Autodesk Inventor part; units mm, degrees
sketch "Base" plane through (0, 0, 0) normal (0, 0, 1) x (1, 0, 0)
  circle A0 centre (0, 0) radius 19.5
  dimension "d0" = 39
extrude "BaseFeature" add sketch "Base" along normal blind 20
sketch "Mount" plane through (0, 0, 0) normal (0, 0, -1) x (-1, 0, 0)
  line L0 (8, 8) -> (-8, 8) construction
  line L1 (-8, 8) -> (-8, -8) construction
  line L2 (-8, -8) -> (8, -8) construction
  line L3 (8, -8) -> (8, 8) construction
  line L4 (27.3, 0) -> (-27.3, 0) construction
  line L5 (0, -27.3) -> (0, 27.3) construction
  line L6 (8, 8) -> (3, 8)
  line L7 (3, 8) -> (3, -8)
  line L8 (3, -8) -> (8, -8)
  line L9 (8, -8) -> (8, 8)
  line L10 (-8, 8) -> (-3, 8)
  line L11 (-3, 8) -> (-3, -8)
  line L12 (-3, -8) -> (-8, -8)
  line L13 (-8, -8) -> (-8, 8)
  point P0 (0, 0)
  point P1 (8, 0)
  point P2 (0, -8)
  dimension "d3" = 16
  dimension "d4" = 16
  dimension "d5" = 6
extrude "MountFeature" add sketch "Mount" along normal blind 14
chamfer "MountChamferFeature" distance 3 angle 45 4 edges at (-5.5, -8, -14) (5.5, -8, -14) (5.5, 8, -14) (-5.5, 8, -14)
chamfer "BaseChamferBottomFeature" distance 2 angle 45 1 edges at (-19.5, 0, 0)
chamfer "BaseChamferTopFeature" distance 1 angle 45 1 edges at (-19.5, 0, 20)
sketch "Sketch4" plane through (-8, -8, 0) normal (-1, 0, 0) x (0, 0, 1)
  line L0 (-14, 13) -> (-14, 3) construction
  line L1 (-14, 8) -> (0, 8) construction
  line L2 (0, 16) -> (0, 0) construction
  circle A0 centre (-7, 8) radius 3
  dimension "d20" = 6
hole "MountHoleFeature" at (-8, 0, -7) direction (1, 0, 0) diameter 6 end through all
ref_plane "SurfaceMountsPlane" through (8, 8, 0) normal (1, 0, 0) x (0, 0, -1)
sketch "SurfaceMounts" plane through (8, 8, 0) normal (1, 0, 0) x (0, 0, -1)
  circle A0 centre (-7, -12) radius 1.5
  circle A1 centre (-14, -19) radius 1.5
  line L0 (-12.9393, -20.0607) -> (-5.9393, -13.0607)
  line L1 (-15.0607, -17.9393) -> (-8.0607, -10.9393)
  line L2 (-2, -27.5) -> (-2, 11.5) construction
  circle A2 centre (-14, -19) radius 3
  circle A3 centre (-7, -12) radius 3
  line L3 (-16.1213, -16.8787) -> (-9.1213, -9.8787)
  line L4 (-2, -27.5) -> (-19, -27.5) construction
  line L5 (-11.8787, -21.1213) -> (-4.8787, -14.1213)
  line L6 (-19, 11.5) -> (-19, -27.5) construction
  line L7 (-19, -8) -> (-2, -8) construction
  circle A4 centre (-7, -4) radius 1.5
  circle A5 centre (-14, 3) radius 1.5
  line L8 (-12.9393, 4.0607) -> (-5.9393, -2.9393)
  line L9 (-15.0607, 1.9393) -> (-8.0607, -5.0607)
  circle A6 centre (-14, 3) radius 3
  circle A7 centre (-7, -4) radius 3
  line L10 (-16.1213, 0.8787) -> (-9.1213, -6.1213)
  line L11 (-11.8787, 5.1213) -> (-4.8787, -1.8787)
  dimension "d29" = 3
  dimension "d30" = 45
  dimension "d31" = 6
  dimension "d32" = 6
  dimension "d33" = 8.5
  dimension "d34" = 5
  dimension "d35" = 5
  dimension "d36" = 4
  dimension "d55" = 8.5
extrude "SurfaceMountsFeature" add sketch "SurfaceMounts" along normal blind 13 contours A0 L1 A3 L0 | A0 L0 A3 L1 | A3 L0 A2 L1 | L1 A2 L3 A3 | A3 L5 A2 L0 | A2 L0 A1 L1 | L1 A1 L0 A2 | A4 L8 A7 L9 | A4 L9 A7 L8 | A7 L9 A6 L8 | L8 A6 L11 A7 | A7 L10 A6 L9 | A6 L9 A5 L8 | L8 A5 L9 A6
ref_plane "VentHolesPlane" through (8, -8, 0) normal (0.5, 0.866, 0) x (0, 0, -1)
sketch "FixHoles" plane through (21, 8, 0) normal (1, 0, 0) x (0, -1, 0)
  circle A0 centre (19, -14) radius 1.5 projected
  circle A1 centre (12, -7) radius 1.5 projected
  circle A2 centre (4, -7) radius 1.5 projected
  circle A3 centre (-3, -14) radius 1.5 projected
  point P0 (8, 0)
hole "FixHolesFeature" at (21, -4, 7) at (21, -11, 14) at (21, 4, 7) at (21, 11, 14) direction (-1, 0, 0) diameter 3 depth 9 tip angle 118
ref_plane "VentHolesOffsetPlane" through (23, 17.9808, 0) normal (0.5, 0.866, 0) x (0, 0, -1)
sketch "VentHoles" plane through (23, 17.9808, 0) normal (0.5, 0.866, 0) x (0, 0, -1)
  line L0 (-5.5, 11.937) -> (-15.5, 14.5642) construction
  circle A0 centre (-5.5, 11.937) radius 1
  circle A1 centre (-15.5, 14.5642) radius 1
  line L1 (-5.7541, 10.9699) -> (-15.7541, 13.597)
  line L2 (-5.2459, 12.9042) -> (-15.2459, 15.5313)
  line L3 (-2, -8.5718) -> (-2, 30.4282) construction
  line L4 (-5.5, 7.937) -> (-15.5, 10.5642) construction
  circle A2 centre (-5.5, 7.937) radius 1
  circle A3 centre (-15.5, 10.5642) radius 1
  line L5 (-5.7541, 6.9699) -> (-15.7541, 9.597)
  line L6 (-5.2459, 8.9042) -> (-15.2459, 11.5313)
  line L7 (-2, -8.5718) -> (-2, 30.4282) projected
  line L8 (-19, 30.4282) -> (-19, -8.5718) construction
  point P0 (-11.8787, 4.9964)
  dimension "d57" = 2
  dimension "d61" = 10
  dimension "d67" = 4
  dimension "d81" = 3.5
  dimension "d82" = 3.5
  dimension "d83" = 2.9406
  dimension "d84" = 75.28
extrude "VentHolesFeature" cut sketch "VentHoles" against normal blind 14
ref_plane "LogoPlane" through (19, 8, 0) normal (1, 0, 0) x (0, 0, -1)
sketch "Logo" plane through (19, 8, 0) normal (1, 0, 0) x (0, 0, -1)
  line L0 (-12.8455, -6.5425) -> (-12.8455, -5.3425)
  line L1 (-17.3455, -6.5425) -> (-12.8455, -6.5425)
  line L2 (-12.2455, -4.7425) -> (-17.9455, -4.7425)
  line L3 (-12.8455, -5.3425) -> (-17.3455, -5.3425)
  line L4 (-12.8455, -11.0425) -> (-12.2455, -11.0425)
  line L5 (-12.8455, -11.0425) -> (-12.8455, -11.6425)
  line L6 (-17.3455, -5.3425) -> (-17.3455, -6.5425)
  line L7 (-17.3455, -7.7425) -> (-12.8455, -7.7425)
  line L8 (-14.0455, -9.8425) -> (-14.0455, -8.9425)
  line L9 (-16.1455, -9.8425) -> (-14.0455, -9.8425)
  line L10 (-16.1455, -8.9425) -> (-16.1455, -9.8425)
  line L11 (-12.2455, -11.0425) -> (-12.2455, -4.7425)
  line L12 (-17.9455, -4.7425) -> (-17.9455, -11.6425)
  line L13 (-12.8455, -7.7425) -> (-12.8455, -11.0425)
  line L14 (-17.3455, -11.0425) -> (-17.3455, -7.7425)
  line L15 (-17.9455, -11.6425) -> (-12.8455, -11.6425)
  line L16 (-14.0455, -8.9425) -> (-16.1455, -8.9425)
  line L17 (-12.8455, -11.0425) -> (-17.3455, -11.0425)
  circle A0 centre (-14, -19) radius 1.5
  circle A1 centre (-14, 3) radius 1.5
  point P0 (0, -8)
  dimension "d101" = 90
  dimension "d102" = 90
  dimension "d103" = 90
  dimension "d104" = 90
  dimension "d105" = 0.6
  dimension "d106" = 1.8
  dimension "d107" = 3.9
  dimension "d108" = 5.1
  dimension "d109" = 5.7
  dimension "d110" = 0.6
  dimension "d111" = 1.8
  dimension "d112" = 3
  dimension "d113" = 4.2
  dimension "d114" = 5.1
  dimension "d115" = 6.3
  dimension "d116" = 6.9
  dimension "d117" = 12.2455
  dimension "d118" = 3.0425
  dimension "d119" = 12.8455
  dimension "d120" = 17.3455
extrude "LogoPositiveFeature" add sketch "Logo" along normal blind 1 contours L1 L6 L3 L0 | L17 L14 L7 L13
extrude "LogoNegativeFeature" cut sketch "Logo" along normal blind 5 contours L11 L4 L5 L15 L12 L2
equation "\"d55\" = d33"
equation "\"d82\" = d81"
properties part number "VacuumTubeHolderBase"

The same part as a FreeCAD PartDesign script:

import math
import FreeCAD as App
import Part
import Sketcher
Q = App.Units.Quantity


def edges_at(feature, points):
    """Names of the edges that pass closest to the given points."""
    edges = feature.Shape.Edges
    near = lambda p: min(range(len(edges)), key=lambda i: edges[i].distToShape(Part.Vertex(*p))[0])
    return sorted({f"Edge{near(p) + 1}" for p in points})


def add_polygon(sketch, points):
    """Adds a closed chain of lines whose ends are joined by coincident constraints."""
    first, n = sketch.GeometryCount, len(points)
    for a, b in zip(points, points[1:] + points[:1]):
        sketch.addGeometry(Part.LineSegment(App.Vector(*a, 0), App.Vector(*b, 0)), False)
    for i in range(n):
        sketch.addConstraint(Sketcher.Constraint("Coincident", first + i, 2, first + (i + 1) % n, 1))

doc = App.newDocument("Part")
params = doc.addObject("Spreadsheet::Sheet", "Params")
for row, (alias, value) in enumerate([
    ("sketch1_diameter", "39 mm"),
    ("pad1_length", "20 mm"),
    ("sketch2_height", "16 mm"),
    ("pad2_length", "14 mm"),
    ("chamfer_size", "3 mm"),
    ("chamfer2_size", "2 mm"),
    ("chamfer3_size", "1 mm"),
    ("sketch3_diameter", "6 mm"),
    ("hole_diameter", "6 mm"),
    ("sketch4_diameter", "3 mm"),
    ("sketch4_radius", "3 mm"),
    ("pad3_length", "13 mm"),
    ("sketch5_diameter", "3 mm"),
    ("hole2_diameter", "3 mm"),
    ("hole2_depth", "9 mm"),
    ("sketch6_radius", "1 mm"),
    ("pocket1_length", "14 mm"),
    ("sketch7_width", "1.2 mm"),
    ("sketch7_width2", "3.3 mm"),
    ("sketch7_width3", "0.9 mm"),
    ("sketch7_height", "4.5 mm"),
    ("sketch7_height2", "2.1 mm"),
    ("pad4_length", "1 mm"),
    ("sketch8_width", "6.3 mm"),
    ("sketch8_width2", "6.9 mm"),
    ("sketch8_height", "5.7 mm"),
    ("pocket2_length", "5 mm"),
], start=1):
    params.set(f"A{row}", alias)
    params.set(f"B{row}", "=" + value)
    params.setAlias(f"B{row}", alias)

body = doc.addObject("PartDesign::Body", "Body")

# Sketch on XY plane
sketch1 = body.newObject("Sketcher::SketchObject", "Sketch")
sketch1.AttachmentSupport = (doc.getObject("XY_Plane"), [""])
sketch1.MapMode = "FlatFace"
sketch1.addGeometry(Part.Circle(App.Vector(0, 0, 0), App.Vector(0, 0, 1), 20), False)
sketch1.addConstraint([
    Sketcher.Constraint("Coincident", 0, 3, -1, 1),
    Sketcher.Constraint("Diameter", 0, 39.0),
])
sketch1.setExpression("Constraints[1]", "Params.sketch1_diameter")
pad1 = body.newObject("PartDesign::Pad", "Pad")
pad1.Profile = sketch1
pad1.setExpression("Length", "Params.pad1_length")

# Sketch on XY plane
sketch2 = body.newObject("Sketcher::SketchObject", "Sketch001")
sketch2.AttachmentSupport = (doc.getObject("XY_Plane"), [""])
sketch2.MapMode = "FlatFace"
add_polygon(sketch2, [(-8, -8), (-8, 8), (-3, 8), (-3, -8)])  # lines 0-3
add_polygon(sketch2, [(3, 8), (8, 8), (8, -8), (3, -8)])  # lines 4-7
sketch2.addConstraint([
    Sketcher.Constraint("Vertical", 0),
    Sketcher.Constraint("Horizontal", 1),
    Sketcher.Constraint("Vertical", 2),
    Sketcher.Constraint("Horizontal", 3),
    Sketcher.Constraint("Horizontal", 4),
    Sketcher.Constraint("Vertical", 5),
    Sketcher.Constraint("Horizontal", 6),
    Sketcher.Constraint("Vertical", 7),
    Sketcher.Constraint("Symmetric", 3, 2, 4, 2, -1, 1),
    Sketcher.Constraint("Symmetric", 1, 2, 6, 2, -1, 1),
    Sketcher.Constraint("Horizontal", 1, 2, 4, 2),
    Sketcher.Constraint("DistanceY", 0, 1, 0, 2, 16.0),
    Sketcher.Constraint("DistanceX", 0, 2, 4, 2, 16.0),
    Sketcher.Constraint("DistanceX", 2, 2, 6, 2, 6.0),
])
sketch2.setExpression("Constraints[19]", "Params.sketch2_height")
pad2 = body.newObject("PartDesign::Pad", "Pad001")
pad2.Profile = sketch2
pad2.setExpression("Length", "Params.pad2_length")
pad2.Reversed = True
doc.recompute()

chamfer = body.newObject("PartDesign::Chamfer", "Chamfer")
chamfer.Base = (pad2, edges_at(pad2, [
    (-5.5, -8, -14),
    (5.5, -8, -14),
    (5.5, 8, -14),
    (-5.5, 8, -14),
]))
chamfer.setExpression("Size", "Params.chamfer_size")
doc.recompute()

chamfer2 = body.newObject("PartDesign::Chamfer", "Chamfer001")
chamfer2.Base = (chamfer, edges_at(chamfer, [(-19.5, 0, 0)]))
chamfer2.setExpression("Size", "Params.chamfer2_size")
doc.recompute()

chamfer3 = body.newObject("PartDesign::Chamfer", "Chamfer002")
chamfer3.Base = (chamfer2, edges_at(chamfer2, [(-19.5, 0, 20)]))
chamfer3.setExpression("Size", "Params.chamfer3_size")

# Sketch on YZ plane
sketch3 = body.newObject("Sketcher::SketchObject", "Sketch002")
sketch3.AttachmentSupport = (doc.getObject("YZ_Plane"), [""])
sketch3.MapMode = "FlatFace"
sketch3.AttachmentOffset = App.Placement(App.Vector(0, 0, -8), App.Rotation())
sketch3.addGeometry(Part.Circle(App.Vector(0, -7, 0), App.Vector(0, 0, 1), 3), False)
sketch3.addConstraint([
    Sketcher.Constraint("PointOnObject", 0, 3, -2),
    Sketcher.Constraint("Diameter", 0, 6.0),
    Sketcher.Constraint("DistanceY", 0, 3, -1, 1, 7.0),
])
sketch3.setExpression("Constraints[1]", "Params.sketch3_diameter")
doc.recompute()
hole = body.newObject("PartDesign::Hole", "Hole")
hole.Profile = sketch3
hole.ThreadType = "None"
hole.setExpression("Diameter", "Params.hole_diameter")
hole.DepthType = "ThroughAll"
hole.Reversed = True

# Sketch on YZ plane
sketch4 = body.newObject("Sketcher::SketchObject", "Sketch003")
sketch4.AttachmentSupport = (doc.getObject("YZ_Plane"), [""])
sketch4.MapMode = "FlatFace"
sketch4.AttachmentOffset = App.Placement(App.Vector(0, 0, 8), App.Rotation())
sketch4.addGeometry([
    Part.LineSegment(App.Vector(-1.9, 9.1, 0), App.Vector(-8.9, 16.1, 0)),  # 0
    Part.ArcOfCircle(Part.Circle(App.Vector(-11, 14, 0), App.Vector(0, 0, 1), 3), math.radians(45), math.radians(225)),  # 1
    Part.LineSegment(App.Vector(-13.1, 11.9, 0), App.Vector(-6.1, 4.9, 0)),  # 2
    Part.ArcOfCircle(Part.Circle(App.Vector(-4, 7, 0), App.Vector(0, 0, 1), 3), math.radians(-135), math.radians(45)),  # 3
    Part.Circle(App.Vector(-4, 7, 0), App.Vector(0, 0, 1), 1.5),  # 4
    Part.Circle(App.Vector(-11, 14, 0), App.Vector(0, 0, 1), 1.5),  # 5
    Part.LineSegment(App.Vector(6.1, 4.9, 0), App.Vector(13.1, 11.9, 0)),  # 6
    Part.ArcOfCircle(Part.Circle(App.Vector(11, 14, 0), App.Vector(0, 0, 1), 3), math.radians(-45), math.radians(135)),  # 7
    Part.LineSegment(App.Vector(8.9, 16.1, 0), App.Vector(1.9, 9.1, 0)),  # 8
    Part.ArcOfCircle(Part.Circle(App.Vector(4, 7, 0), App.Vector(0, 0, 1), 3), math.radians(135), math.radians(315)),  # 9
    Part.Circle(App.Vector(4, 7, 0), App.Vector(0, 0, 1), 1.5),  # 10
    Part.Circle(App.Vector(11, 14, 0), App.Vector(0, 0, 1), 1.5),  # 11
], False)
sketch4.addConstraint([
    Sketcher.Constraint("Tangent", 0, 2, 1, 1),
    Sketcher.Constraint("Tangent", 1, 2, 2, 1),
    Sketcher.Constraint("Tangent", 2, 2, 3, 1),
    Sketcher.Constraint("Tangent", 3, 2, 0, 1),
    Sketcher.Constraint("Tangent", 6, 2, 7, 1),
    Sketcher.Constraint("Tangent", 7, 2, 8, 1),
    Sketcher.Constraint("Tangent", 8, 2, 9, 1),
    Sketcher.Constraint("Tangent", 9, 2, 6, 1),
    Sketcher.Constraint("Coincident", 4, 3, 3, 3),
    Sketcher.Constraint("Coincident", 5, 3, 1, 3),
    Sketcher.Constraint("Coincident", 10, 3, 9, 3),
    Sketcher.Constraint("Coincident", 11, 3, 7, 3),
    Sketcher.Constraint("Equal", 1, 3),
    Sketcher.Constraint("Equal", 4, 5),
    Sketcher.Constraint("Equal", 3, 7),
    Sketcher.Constraint("Equal", 7, 9),
    Sketcher.Constraint("Equal", 5, 10),
    Sketcher.Constraint("Equal", 10, 11),
    Sketcher.Constraint("Symmetric", 1, 3, 7, 3, -2),
    Sketcher.Constraint("Symmetric", 3, 3, 9, 3, -2),
    Sketcher.Constraint("Perpendicular", 2, 6),
    Sketcher.Constraint("Diameter", 4, 3.0),
    Sketcher.Constraint("Radius", 1, 3.0),
    Sketcher.Constraint("DistanceX", 3, 3, -1, 1, 4.0),
    Sketcher.Constraint("DistanceX", 1, 3, -1, 1, 11.0),
    Sketcher.Constraint("DistanceY", -1, 1, 1, 3, 14.0),
])
sketch4.setExpression("Constraints[21]", "Params.sketch4_diameter")
sketch4.setExpression("Constraints[22]", "Params.sketch4_radius")
pad3 = body.newObject("PartDesign::Pad", "Pad002")
pad3.Profile = sketch4
pad3.setExpression("Length", "Params.pad3_length")

# Sketch on YZ plane
sketch5 = body.newObject("Sketcher::SketchObject", "Sketch004")
sketch5.AttachmentSupport = (doc.getObject("YZ_Plane"), [""])
sketch5.MapMode = "FlatFace"
sketch5.AttachmentOffset = App.Placement(App.Vector(0, 0, 21), App.Rotation())
sketch5.addGeometry([
    Part.Circle(App.Vector(-4, 7, 0), App.Vector(0, 0, 1), 1.5),
    Part.Circle(App.Vector(-11, 14, 0), App.Vector(0, 0, 1), 1.5),
    Part.Circle(App.Vector(4, 7, 0), App.Vector(0, 0, 1), 1.5),
    Part.Circle(App.Vector(11, 14, 0), App.Vector(0, 0, 1), 1.5),
], False)
sketch5.addConstraint([
    Sketcher.Constraint("Equal", 0, 1),
    Sketcher.Constraint("Equal", 1, 2),
    Sketcher.Constraint("Equal", 2, 3),
    Sketcher.Constraint("Symmetric", 0, 3, 2, 3, -2),
    Sketcher.Constraint("Symmetric", 1, 3, 3, 3, -2),
    Sketcher.Constraint("Diameter", 0, 3.0),
    Sketcher.Constraint("DistanceX", 0, 3, -1, 1, 4.0),
    Sketcher.Constraint("DistanceY", -1, 1, 0, 3, 7.0),
    Sketcher.Constraint("DistanceX", 1, 3, -1, 1, 11.0),
    Sketcher.Constraint("DistanceY", -1, 1, 1, 3, 14.0),
])
sketch5.setExpression("Constraints[5]", "Params.sketch5_diameter")
doc.recompute()
hole2 = body.newObject("PartDesign::Hole", "Hole001")
hole2.Profile = sketch5
hole2.ThreadType = "None"
hole2.setExpression("Diameter", "Params.hole2_diameter")
hole2.DepthType = "Dimension"
hole2.setExpression("Depth", "Params.hole2_depth")
hole2.DrillPoint = "Angled"
hole2.DrillPointAngle = 118

# Sketch on an angled plane
sketch6 = body.newObject("Sketcher::SketchObject", "Sketch005")
sketch6.Placement = App.Placement(App.Vector(23, 17.9808, 0), App.Rotation(App.Vector(0, 0, -1), App.Vector(-0.866025404, 0.5, 0), App.Vector(0.5, 0.866025404, 0), "ZXY"))
sketch6.addGeometry([
    Part.ArcOfCircle(Part.Circle(App.Vector(-5.5, 11.9, 0), App.Vector(0, 0, 1), 1), math.radians(-105), math.radians(75)),  # 0
    Part.LineSegment(App.Vector(-5.2, 12.9, 0), App.Vector(-15.2, 15.5, 0)),  # 1
    Part.ArcOfCircle(Part.Circle(App.Vector(-15.5, 14.6, 0), App.Vector(0, 0, 1), 1), math.radians(75), math.radians(255)),  # 2
    Part.LineSegment(App.Vector(-15.8, 13.6, 0), App.Vector(-5.8, 11, 0)),  # 3
    Part.ArcOfCircle(Part.Circle(App.Vector(-5.5, 7.9, 0), App.Vector(0, 0, 1), 1), math.radians(-105), math.radians(75)),  # 4
    Part.LineSegment(App.Vector(-5.2, 8.9, 0), App.Vector(-15.2, 11.5, 0)),  # 5
    Part.ArcOfCircle(Part.Circle(App.Vector(-15.5, 10.6, 0), App.Vector(0, 0, 1), 1), math.radians(75), math.radians(255)),  # 6
    Part.LineSegment(App.Vector(-15.8, 9.6, 0), App.Vector(-5.8, 7, 0)),  # 7
], False)
sketch6.addConstraint([
    Sketcher.Constraint("Tangent", 0, 2, 1, 1),
    Sketcher.Constraint("Tangent", 1, 2, 2, 1),
    Sketcher.Constraint("Tangent", 2, 2, 3, 1),
    Sketcher.Constraint("Tangent", 3, 2, 0, 1),
    Sketcher.Constraint("Tangent", 4, 2, 5, 1),
    Sketcher.Constraint("Tangent", 5, 2, 6, 1),
    Sketcher.Constraint("Tangent", 6, 2, 7, 1),
    Sketcher.Constraint("Tangent", 7, 2, 4, 1),
    Sketcher.Constraint("Equal", 0, 2),
    Sketcher.Constraint("Equal", 2, 4),
    Sketcher.Constraint("Equal", 4, 6),
    Sketcher.Constraint("Parallel", 3, 5),
    Sketcher.Constraint("Vertical", 0, 3, 4, 3),
    Sketcher.Constraint("Vertical", 2, 3, 6, 3),
    Sketcher.Constraint("Radius", 0, 1.0),
    Sketcher.Constraint("DistanceX", 2, 3, 0, 3, 10.0),
    Sketcher.Constraint("DistanceY", 4, 3, 0, 3, 4.0),
    Sketcher.Constraint("DistanceX", 0, 3, -1, 1, 5.5),
    Sketcher.Constraint("Angle", 1, Q("165.2804 deg")),
    Sketcher.Constraint("DistanceY", -1, 1, 3, 2, 10.97),
])
sketch6.setExpression("Constraints[14]", "Params.sketch6_radius")
pocket1 = body.newObject("PartDesign::Pocket", "Pocket")
pocket1.Profile = sketch6
pocket1.setExpression("Length", "Params.pocket1_length")

# Sketch on YZ plane
sketch7 = body.newObject("Sketcher::SketchObject", "Sketch006")
sketch7.AttachmentSupport = (doc.getObject("YZ_Plane"), [""])
sketch7.MapMode = "FlatFace"
sketch7.AttachmentOffset = App.Placement(App.Vector(0, 0, 19), App.Rotation())
add_polygon(sketch7, [(1.5, 17.3), (1.5, 12.8), (2.7, 12.8), (2.7, 17.3)])  # lines 0-3
add_polygon(sketch7, [(-3, 17.3), (-3, 12.8), (0.3, 12.8), (0.3, 17.3)])  # lines 4-7
add_polygon(sketch7, [(-0.9, 14), (-1.8, 14), (-1.8, 16.1), (-0.9, 16.1)])  # lines 8-11
sketch7.addConstraint([
    Sketcher.Constraint("Vertical", 0),
    Sketcher.Constraint("Horizontal", 1),
    Sketcher.Constraint("Vertical", 2),
    Sketcher.Constraint("Horizontal", 3),
    Sketcher.Constraint("Vertical", 4),
    Sketcher.Constraint("Horizontal", 5),
    Sketcher.Constraint("Vertical", 6),
    Sketcher.Constraint("Horizontal", 7),
    Sketcher.Constraint("Horizontal", 8),
    Sketcher.Constraint("Vertical", 9),
    Sketcher.Constraint("Horizontal", 10),
    Sketcher.Constraint("Vertical", 11),
    Sketcher.Constraint("Horizontal", 1, 2, 4, 2),
    Sketcher.Constraint("Horizontal", 3, 2, 6, 2),
    Sketcher.Constraint("DistanceX", 4, 2, 1, 2, 5.7),
    Sketcher.Constraint("DistanceX", 1, 1, 1, 2, 1.2),
    Sketcher.Constraint("DistanceX", 5, 1, 5, 2, 3.3),
    Sketcher.Constraint("DistanceX", 8, 2, 8, 1, 0.9),
    Sketcher.Constraint("DistanceY", 0, 2, 0, 1, 4.5),
    Sketcher.Constraint("DistanceY", 9, 1, 9, 2, 2.1),
    Sketcher.Constraint("DistanceY", -1, 1, 0, 2, 12.8455),
    Sketcher.Constraint("DistanceX", 4, 2, -1, 1, 3.0425),
    Sketcher.Constraint("DistanceX", 4, 2, 8, 2, 1.2),
    Sketcher.Constraint("DistanceY", 4, 2, 8, 2, 1.2),
])
sketch7.setExpression("Constraints[27]", "Params.sketch7_width")
sketch7.setExpression("Constraints[28]", "Params.sketch7_width2")
sketch7.setExpression("Constraints[29]", "Params.sketch7_width3")
sketch7.setExpression("Constraints[30]", "Params.sketch7_height")
sketch7.setExpression("Constraints[31]", "Params.sketch7_height2")
pad4 = body.newObject("PartDesign::Pad", "Pad003")
pad4.Profile = sketch7
pad4.setExpression("Length", "Params.pad4_length")

# Sketch on YZ plane
sketch8 = body.newObject("Sketcher::SketchObject", "Sketch007")
sketch8.AttachmentSupport = (doc.getObject("YZ_Plane"), [""])
sketch8.MapMode = "FlatFace"
sketch8.AttachmentOffset = App.Placement(App.Vector(0, 0, 19), App.Rotation())
add_polygon(sketch8, [(-3, 12.2), (3.3, 12.2), (3.3, 17.9), (-3.6, 17.9), (-3.6, 12.8), (-3, 12.8)])  # lines 0-5
add_polygon(sketch8, [(0.3, 12.8), (-3, 12.8), (-3, 17.3), (0.3, 17.3)])  # lines 6-9
add_polygon(sketch8, [(2.7, 12.8), (1.5, 12.8), (1.5, 17.3), (2.7, 17.3)])  # lines 10-13
sketch8.addConstraint([
    Sketcher.Constraint("Horizontal", 0),
    Sketcher.Constraint("Vertical", 1),
    Sketcher.Constraint("Horizontal", 2),
    Sketcher.Constraint("Vertical", 3),
    Sketcher.Constraint("Horizontal", 4),
    Sketcher.Constraint("Vertical", 5),
    Sketcher.Constraint("Horizontal", 6),
    Sketcher.Constraint("Vertical", 7),
    Sketcher.Constraint("Horizontal", 8),
    Sketcher.Constraint("Vertical", 9),
    Sketcher.Constraint("Horizontal", 10),
    Sketcher.Constraint("Vertical", 11),
    Sketcher.Constraint("Horizontal", 12),
    Sketcher.Constraint("Vertical", 13),
    Sketcher.Constraint("Coincident", 6, 2, 4, 2),
    Sketcher.Constraint("Horizontal", 9, 2, 10, 2),
    Sketcher.Constraint("Horizontal", 8, 2, 11, 2),
    Sketcher.Constraint("Equal", 4, 5),
    Sketcher.Constraint("DistanceX", 0, 1, 0, 2, 6.3),
    Sketcher.Constraint("DistanceX", 2, 2, 2, 1, 6.9),
    Sketcher.Constraint("DistanceY", 1, 1, 1, 2, 5.7),
    Sketcher.Constraint("DistanceX", 8, 2, 1, 2, 3.0),
    Sketcher.Constraint("DistanceY", 7, 2, 2, 2, 0.6),
    Sketcher.Constraint("DistanceX", 10, 2, 0, 2, 1.8),
    Sketcher.Constraint("DistanceX", 12, 2, 1, 2, 0.6),
    Sketcher.Constraint("DistanceY", -1, 1, 0, 2, 12.2455),
    Sketcher.Constraint("DistanceX", 4, 2, -1, 1, 3.0425),
])
sketch8.setExpression("Constraints[32]", "Params.sketch8_width")
sketch8.setExpression("Constraints[33]", "Params.sketch8_width2")
sketch8.setExpression("Constraints[34]", "Params.sketch8_height")
pocket2 = body.newObject("PartDesign::Pocket", "Pocket001")
pocket2.Profile = sketch8
pocket2.setExpression("Length", "Params.pocket2_length")
pocket2.Reversed = True

doc.recompute()
